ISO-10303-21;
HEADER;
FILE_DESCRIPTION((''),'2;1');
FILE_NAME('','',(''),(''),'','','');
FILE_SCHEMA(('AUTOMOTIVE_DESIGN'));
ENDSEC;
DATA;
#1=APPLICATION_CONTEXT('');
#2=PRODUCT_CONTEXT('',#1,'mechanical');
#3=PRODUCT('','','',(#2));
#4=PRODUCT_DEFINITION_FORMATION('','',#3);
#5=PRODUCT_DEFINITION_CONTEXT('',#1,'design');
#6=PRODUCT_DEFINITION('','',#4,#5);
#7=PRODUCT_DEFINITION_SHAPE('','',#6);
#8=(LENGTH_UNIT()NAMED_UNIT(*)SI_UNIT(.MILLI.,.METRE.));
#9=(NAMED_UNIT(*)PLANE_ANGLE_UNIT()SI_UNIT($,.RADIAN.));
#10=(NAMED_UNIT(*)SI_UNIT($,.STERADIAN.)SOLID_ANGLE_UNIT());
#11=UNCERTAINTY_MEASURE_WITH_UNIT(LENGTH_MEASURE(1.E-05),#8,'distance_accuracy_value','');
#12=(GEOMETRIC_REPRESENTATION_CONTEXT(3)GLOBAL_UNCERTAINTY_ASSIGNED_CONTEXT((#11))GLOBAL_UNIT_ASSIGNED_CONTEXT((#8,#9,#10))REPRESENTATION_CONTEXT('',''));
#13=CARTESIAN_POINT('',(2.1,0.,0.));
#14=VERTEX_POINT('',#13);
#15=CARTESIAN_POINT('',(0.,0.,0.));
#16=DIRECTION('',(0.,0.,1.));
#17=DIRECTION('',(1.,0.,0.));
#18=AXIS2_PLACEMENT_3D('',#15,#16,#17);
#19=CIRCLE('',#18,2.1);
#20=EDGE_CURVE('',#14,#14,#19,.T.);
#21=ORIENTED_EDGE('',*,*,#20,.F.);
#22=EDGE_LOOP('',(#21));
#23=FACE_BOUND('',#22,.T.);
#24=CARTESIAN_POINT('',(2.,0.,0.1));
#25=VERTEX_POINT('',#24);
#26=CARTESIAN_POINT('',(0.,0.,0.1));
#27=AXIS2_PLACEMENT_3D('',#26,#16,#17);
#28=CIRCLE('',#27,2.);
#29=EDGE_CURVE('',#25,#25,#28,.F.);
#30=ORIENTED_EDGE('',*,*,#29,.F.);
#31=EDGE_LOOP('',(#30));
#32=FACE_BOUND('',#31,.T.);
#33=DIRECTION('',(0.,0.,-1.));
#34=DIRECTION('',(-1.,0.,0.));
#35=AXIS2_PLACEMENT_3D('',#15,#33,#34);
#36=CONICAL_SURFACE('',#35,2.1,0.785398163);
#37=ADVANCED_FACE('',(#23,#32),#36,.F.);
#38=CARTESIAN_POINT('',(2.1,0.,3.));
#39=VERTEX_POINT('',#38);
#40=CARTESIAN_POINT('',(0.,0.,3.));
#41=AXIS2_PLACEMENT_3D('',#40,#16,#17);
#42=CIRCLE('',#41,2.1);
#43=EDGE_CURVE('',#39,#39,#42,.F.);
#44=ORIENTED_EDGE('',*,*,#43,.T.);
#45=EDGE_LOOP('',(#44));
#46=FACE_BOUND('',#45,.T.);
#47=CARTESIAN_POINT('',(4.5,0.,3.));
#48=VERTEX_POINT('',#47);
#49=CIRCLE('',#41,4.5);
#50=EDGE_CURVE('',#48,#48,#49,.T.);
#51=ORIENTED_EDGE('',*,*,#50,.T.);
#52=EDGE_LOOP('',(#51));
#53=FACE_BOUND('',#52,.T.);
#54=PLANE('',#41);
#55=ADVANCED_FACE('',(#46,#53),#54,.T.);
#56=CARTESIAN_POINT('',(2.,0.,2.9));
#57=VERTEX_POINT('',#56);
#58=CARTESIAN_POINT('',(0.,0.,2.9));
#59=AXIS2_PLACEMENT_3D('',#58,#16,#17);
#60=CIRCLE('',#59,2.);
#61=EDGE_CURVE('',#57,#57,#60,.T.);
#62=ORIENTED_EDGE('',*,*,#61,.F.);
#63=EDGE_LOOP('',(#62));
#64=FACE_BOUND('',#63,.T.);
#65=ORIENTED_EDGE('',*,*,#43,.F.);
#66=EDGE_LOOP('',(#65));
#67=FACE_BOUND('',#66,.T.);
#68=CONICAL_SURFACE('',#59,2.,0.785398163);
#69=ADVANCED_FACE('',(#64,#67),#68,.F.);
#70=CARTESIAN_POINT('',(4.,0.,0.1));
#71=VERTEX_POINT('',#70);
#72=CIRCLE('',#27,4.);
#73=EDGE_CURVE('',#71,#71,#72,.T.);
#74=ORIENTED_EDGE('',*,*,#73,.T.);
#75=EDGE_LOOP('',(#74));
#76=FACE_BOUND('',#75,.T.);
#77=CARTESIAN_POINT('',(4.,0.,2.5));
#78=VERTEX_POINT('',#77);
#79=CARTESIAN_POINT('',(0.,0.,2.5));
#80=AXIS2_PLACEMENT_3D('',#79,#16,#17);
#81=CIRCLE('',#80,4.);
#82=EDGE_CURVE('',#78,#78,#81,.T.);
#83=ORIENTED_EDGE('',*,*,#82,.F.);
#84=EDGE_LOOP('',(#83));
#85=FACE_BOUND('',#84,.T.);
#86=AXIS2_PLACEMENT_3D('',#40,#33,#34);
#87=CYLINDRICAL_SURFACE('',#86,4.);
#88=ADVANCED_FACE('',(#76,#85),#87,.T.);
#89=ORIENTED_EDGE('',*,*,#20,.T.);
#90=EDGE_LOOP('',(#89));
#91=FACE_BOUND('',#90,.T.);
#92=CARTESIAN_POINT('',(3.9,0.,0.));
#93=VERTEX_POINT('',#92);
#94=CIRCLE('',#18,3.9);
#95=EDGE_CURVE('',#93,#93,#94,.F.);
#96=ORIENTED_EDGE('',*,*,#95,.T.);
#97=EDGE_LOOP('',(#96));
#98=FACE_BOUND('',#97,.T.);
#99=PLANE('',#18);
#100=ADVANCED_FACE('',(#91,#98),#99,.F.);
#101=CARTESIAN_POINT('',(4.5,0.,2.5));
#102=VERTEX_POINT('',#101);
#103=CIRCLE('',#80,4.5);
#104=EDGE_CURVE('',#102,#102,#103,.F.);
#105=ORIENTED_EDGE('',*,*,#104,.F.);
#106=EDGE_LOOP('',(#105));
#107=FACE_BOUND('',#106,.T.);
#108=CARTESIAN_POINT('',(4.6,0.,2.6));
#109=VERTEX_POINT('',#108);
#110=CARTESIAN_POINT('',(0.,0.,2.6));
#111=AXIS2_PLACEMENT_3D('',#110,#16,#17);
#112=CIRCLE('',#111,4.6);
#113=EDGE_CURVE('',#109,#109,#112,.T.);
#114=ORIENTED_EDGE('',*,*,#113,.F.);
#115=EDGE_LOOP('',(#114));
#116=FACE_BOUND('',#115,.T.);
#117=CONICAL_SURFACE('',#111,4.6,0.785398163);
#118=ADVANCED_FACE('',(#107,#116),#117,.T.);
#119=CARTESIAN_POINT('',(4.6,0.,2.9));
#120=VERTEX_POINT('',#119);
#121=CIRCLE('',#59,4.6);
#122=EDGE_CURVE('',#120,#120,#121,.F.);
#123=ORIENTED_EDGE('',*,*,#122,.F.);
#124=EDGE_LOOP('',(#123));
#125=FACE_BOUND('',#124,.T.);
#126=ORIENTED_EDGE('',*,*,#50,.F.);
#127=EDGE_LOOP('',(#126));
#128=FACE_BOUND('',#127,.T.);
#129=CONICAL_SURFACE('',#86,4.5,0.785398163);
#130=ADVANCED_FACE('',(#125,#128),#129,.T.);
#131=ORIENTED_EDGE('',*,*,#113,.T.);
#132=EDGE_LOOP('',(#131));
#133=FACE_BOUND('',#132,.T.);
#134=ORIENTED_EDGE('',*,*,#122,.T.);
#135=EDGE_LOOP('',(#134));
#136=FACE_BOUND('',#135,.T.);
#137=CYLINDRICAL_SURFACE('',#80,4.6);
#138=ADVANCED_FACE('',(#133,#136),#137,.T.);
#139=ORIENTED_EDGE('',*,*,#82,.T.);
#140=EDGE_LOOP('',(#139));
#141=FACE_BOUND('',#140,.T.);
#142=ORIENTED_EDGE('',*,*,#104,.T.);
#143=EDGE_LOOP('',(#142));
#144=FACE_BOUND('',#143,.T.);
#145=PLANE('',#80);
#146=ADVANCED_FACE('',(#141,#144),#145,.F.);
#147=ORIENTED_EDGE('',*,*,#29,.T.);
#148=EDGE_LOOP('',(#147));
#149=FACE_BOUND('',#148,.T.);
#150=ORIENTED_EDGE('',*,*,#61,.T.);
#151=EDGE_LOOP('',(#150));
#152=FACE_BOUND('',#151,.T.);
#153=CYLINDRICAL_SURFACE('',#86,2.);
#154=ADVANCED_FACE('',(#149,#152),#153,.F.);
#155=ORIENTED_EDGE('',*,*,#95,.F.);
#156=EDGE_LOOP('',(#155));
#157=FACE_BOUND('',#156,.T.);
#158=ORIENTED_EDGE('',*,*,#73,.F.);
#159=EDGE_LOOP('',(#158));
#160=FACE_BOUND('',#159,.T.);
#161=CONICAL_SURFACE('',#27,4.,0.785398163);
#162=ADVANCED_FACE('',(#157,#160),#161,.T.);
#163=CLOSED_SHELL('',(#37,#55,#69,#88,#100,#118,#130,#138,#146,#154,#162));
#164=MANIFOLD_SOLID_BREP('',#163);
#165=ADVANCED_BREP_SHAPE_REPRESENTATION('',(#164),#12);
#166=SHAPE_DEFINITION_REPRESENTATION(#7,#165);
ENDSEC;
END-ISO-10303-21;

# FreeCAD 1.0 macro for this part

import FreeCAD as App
import Part
import Sketcher
from FreeCAD import Vector
Q = App.Units.Quantity


def edges_at(feature, points):
    """Names of the edges that pass closest to the given points."""
    edges = feature.Shape.Edges
    near = lambda p: min(range(len(edges)), key=lambda i: edges[i].distToShape(Part.Vertex(*p))[0])
    return sorted({f"Edge{near(p) + 1}" for p in points})

doc = App.newDocument("Part")
params = doc.addObject("Spreadsheet::Sheet", "Params")
for row, (alias, value) in enumerate([
    ("sketch1_diameter", "8 mm"),
    ("sketch1_diameter2", "4 mm"),
    ("pad1_length", "3 mm"),
    ("sketch2_diameter", "8 mm"),
    ("sketch2_diameter2", "9.2 mm"),
    ("pad2_length", "0.5 mm"),
    ("chamfer_size", "0.1 mm"),
], start=1):
    params.set(f"A{row}", alias)
    params.set(f"B{row}", "=" + value)
    params.setAlias(f"B{row}", alias)

body = doc.addObject("PartDesign::Body", "Body")

# Sketch on XY plane
sketch1 = body.newObject("Sketcher::SketchObject", "Sketch")
sketch1.AttachmentSupport = (doc.getObject("XY_Plane"), [""])
sketch1.MapMode = "FlatFace"
sketch1.addGeometry(Part.Circle(Vector(0, 0, 0), Vector(0, 0, 1), 4), False)
sketch1.addGeometry(Part.Circle(Vector(0, 0, 0), Vector(0, 0, 1), 2), False)
sketch1.addConstraint(Sketcher.Constraint("Coincident", 0, 3, -1, 1))
sketch1.addConstraint(Sketcher.Constraint("Coincident", 1, 3, -1, 1))
sketch1.addConstraint(Sketcher.Constraint("Diameter", 0, Q("8 mm")))
sketch1.addConstraint(Sketcher.Constraint("Diameter", 1, Q("4 mm")))
sketch1.setExpression("Constraints[2]", "Params.sketch1_diameter")
sketch1.setExpression("Constraints[3]", "Params.sketch1_diameter2")
pad1 = body.newObject("PartDesign::Pad", "Pad")
pad1.Profile = sketch1
pad1.setExpression("Length", "Params.pad1_length")

# Sketch on XY plane
sketch2 = body.newObject("Sketcher::SketchObject", "Sketch001")
sketch2.AttachmentSupport = (doc.getObject("XY_Plane"), [""])
sketch2.MapMode = "FlatFace"
sketch2.AttachmentOffset = App.Placement(Vector(0, 0, 2.5), App.Rotation())
sketch2.addGeometry(Part.Circle(Vector(0, 0, 0), Vector(0, 0, 1), 4.6), False)
sketch2.addGeometry(Part.Circle(Vector(0, 0, 0), Vector(0, 0, 1), 4), False)
sketch2.addConstraint(Sketcher.Constraint("Coincident", 0, 3, -1, 1))
sketch2.addConstraint(Sketcher.Constraint("Coincident", 1, 3, -1, 1))
sketch2.addConstraint(Sketcher.Constraint("Diameter", 1, Q("8 mm")))
sketch2.addConstraint(Sketcher.Constraint("Diameter", 0, Q("9.2 mm")))
sketch2.setExpression("Constraints[2]", "Params.sketch2_diameter")
sketch2.setExpression("Constraints[3]", "Params.sketch2_diameter2")
pad2 = body.newObject("PartDesign::Pad", "Pad001")
pad2.Profile = sketch2
pad2.setExpression("Length", "Params.pad2_length")
doc.recompute()

chamfer = body.newObject("PartDesign::Chamfer", "Chamfer")
chamfer.Base = (pad2, edges_at(pad2, [
    (-4.6, 0, 2.5),
    (-4.6, 0, 3),
    (-4, 0, 0),
    (-2, 0, 0),
    (-2, 0, 3),
]))
chamfer.setExpression("Size", "Params.chamfer_size")

doc.recompute()
